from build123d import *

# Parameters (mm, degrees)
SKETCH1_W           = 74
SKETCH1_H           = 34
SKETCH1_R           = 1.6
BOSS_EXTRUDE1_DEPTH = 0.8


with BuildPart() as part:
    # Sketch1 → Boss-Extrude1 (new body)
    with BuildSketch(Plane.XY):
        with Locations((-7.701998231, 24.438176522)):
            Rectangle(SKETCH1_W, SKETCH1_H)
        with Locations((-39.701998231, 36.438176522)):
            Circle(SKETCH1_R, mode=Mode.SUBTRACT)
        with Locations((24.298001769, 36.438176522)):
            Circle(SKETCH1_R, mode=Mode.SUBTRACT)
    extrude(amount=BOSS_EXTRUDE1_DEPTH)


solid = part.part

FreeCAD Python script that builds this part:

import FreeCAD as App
import Part
import Sketcher

V = App.Vector

doc = App.newDocument("Part")
body = doc.addObject("PartDesign::Body", "Body")

# Sketch on XY plane
sketch1 = body.newObject("Sketcher::SketchObject", "Sketch")
sketch1.AttachmentSupport = (doc.getObject("XY_Plane"), [""])
sketch1.MapMode = "FlatFace"
sketch1.addGeometry([
    Part.LineSegment(V(-44.7, 41.4, 0), V(-44.7, 7.4, 0)),  # 0
    Part.LineSegment(V(-44.7, 7.4, 0), V(29.3, 7.4, 0)),  # 1
    Part.LineSegment(V(29.3, 7.4, 0), V(29.3, 41.4, 0)),  # 2
    Part.LineSegment(V(29.3, 41.4, 0), V(-44.7, 41.4, 0)),  # 3
    Part.Circle(V(-39.7, 36.4, 0), V(0, 0, 1), 1.6),  # 4
    Part.Circle(V(24.3, 36.4, 0), V(0, 0, 1), 1.6),  # 5
], False)
sketch1.addConstraint([
    Sketcher.Constraint("Coincident", 0, 2, 1, 1),
    Sketcher.Constraint("Coincident", 1, 2, 2, 1),
    Sketcher.Constraint("Coincident", 2, 2, 3, 1),
    Sketcher.Constraint("Coincident", 3, 2, 0, 1),
    Sketcher.Constraint("Vertical", 0),
    Sketcher.Constraint("Horizontal", 1),
    Sketcher.Constraint("Vertical", 2),
    Sketcher.Constraint("Horizontal", 3),
    Sketcher.Constraint("Equal", 4, 5),
    Sketcher.Constraint("Horizontal", 4, 3, 5, 3),
    Sketcher.Constraint("Diameter", 4, 3.2),
    Sketcher.Constraint("DistanceX", 1, 1, 1, 2, 74.0),
    Sketcher.Constraint("DistanceY", 0, 2, 0, 1, 34.0),
    Sketcher.Constraint("DistanceX", 4, 3, 5, 3, 64.0),
    Sketcher.Constraint("DistanceX", 0, 2, 4, 3, 5.0),
    Sketcher.Constraint("DistanceY", 0, 2, 4, 3, 29.0),
    Sketcher.Constraint("DistanceX", 4, 3, -1, 1, 39.701998),
    Sketcher.Constraint("DistanceY", -1, 1, 4, 3, 36.438177),
])
pad1 = body.newObject("PartDesign::Pad", "Pad")
pad1.Profile = sketch1
pad1.Length = 0.8

doc.recompute()
